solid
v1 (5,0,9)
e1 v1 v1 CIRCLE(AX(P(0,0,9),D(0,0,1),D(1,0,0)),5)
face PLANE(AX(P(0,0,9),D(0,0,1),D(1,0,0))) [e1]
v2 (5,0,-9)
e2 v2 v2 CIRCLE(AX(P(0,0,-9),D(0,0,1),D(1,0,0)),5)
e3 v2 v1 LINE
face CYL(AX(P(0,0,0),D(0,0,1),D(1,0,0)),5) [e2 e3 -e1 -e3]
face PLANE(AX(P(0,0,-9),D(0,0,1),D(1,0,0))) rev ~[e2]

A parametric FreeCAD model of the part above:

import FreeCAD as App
import Part
import Sketcher

V = App.Vector
Q = App.Units.Quantity

doc = App.newDocument("Part")
params = doc.addObject("Spreadsheet::Sheet", "Params")
for row, (alias, value) in enumerate([
    ("sketch1_diameter", "10 mm"),
    ("pad1_length", "18 mm"),
], start=1):
    params.set(f"A{row}", alias)
    params.set(f"B{row}", "=" + value)
    params.setAlias(f"B{row}", alias)

body = doc.addObject("PartDesign::Body", "Body")

# Sketch on XY plane
sketch1 = doc.addObject("Sketcher::SketchObject", "Sketch")
body.addObject(sketch1)
sketch1.AttachmentSupport = (doc.XY_Plane, [""])
sketch1.MapMode = "FlatFace"
sketch1.addGeometry(Part.Circle(V(0, 0, 0), V(0, 0, 1), 5), False)
sketch1.addConstraint(Sketcher.Constraint("Coincident", 0, 3, -1, 1))
sketch1.addConstraint(Sketcher.Constraint("Diameter", 0, Q("10 mm")))
sketch1.setExpression("Constraints[1]", "Params.sketch1_diameter")
pad1 = doc.addObject("PartDesign::Pad", "Pad")
body.addObject(pad1)
pad1.Profile = sketch1
pad1.setExpression("Length", "Params.pad1_length")
pad1.Midplane = True

doc.recompute()
